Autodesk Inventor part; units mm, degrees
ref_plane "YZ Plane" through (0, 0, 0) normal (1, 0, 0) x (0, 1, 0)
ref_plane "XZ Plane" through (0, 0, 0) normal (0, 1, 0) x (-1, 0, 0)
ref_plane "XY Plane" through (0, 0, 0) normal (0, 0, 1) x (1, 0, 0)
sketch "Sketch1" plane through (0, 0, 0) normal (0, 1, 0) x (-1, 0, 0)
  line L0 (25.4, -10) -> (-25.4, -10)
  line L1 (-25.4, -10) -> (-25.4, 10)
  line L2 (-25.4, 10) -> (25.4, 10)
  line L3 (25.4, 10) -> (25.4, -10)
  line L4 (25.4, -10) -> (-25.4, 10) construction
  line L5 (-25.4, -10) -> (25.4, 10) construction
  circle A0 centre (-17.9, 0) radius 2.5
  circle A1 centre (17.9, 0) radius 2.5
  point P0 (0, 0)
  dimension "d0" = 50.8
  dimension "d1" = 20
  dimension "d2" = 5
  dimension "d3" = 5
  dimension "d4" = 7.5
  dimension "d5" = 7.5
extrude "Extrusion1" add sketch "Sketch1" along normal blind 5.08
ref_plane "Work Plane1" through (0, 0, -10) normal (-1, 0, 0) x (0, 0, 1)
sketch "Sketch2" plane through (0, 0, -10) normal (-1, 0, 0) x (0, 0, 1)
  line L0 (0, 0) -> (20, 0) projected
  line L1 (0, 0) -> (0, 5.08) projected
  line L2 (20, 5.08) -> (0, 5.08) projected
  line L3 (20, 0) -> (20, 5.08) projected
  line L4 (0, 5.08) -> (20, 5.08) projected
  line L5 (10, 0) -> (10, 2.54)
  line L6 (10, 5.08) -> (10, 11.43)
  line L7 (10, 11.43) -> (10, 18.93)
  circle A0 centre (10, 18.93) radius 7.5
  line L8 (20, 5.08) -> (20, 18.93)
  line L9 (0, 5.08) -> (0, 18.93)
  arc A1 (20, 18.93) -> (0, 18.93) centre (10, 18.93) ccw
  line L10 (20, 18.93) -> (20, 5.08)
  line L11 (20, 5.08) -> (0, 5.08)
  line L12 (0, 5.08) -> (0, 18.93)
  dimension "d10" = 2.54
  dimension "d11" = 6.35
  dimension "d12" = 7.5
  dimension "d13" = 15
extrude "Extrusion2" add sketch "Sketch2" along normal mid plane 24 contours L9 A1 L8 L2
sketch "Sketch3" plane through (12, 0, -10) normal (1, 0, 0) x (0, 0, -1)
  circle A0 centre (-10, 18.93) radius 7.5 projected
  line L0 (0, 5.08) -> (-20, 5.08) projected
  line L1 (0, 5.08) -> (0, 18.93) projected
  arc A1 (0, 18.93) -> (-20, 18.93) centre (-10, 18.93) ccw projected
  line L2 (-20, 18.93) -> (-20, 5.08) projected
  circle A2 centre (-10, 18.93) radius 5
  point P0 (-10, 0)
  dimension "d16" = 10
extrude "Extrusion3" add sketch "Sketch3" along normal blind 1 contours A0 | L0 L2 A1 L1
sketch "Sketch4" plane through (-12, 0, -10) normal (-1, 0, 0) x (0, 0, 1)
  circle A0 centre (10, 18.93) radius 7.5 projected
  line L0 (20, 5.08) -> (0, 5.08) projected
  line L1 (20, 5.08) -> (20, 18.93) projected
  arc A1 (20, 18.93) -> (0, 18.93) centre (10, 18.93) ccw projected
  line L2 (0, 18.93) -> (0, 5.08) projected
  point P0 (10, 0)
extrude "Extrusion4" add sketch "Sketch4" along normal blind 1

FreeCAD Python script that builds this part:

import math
import FreeCAD as App
import Part
import Sketcher


def add_polygon(sketch, points):
    """Adds a closed chain of lines whose ends are joined by coincident constraints."""
    first, n = sketch.GeometryCount, len(points)
    for a, b in zip(points, points[1:] + points[:1]):
        sketch.addGeometry(Part.LineSegment(App.Vector(*a, 0), App.Vector(*b, 0)), False)
    for i in range(n):
        sketch.addConstraint(Sketcher.Constraint("Coincident", first + i, 2, first + (i + 1) % n, 1))

doc = App.newDocument("Part")
body = doc.addObject("PartDesign::Body", "Body")

sketch1 = body.newObject("Sketcher::SketchObject", "Sketch")
sketch1.AttachmentSupport = (doc.getObject("XZ_Plane"), [""])
sketch1.MapMode = "FlatFace"
add_polygon(sketch1, [(25.4, -10), (-25.4, -10), (-25.4, 10), (25.4, 10)])
sketch1.addGeometry(Part.Circle(App.Vector(17.9, 0, 0), App.Vector(0, 0, 1), 2.5), False)
sketch1.addGeometry(Part.Circle(App.Vector(-17.9, 0, 0), App.Vector(0, 0, 1), 2.5), False)
sketch1.addConstraint([
    Sketcher.Constraint("Horizontal", 0),
    Sketcher.Constraint("Vertical", 1),
    Sketcher.Constraint("Horizontal", 2),
    Sketcher.Constraint("Vertical", 3),
    Sketcher.Constraint("Equal", 4, 5),
    Sketcher.Constraint("Symmetric", 4, 3, 5, 3, -1, 1),
    Sketcher.Constraint("Symmetric", 0, 2, 2, 2, -1, 1),
    Sketcher.Constraint("PointOnObject", 4, 3, -1),
    Sketcher.Constraint("Diameter", 4, 5.0),
    Sketcher.Constraint("DistanceY", 1, 1, 1, 2, 20.0),
    Sketcher.Constraint("DistanceX", 0, 2, 0, 1, 50.8),
    Sketcher.Constraint("DistanceX", 0, 2, 5, 3, 7.5),
])
pad1 = body.newObject("PartDesign::Pad", "Pad")
pad1.Profile = sketch1
pad1.Length = 5.08
pad1.Reversed = True

sketch2 = body.newObject("Sketcher::SketchObject", "Sketch001")
sketch2.AttachmentSupport = (doc.getObject("YZ_Plane"), [""])
sketch2.MapMode = "FlatFace"
sketch2.addGeometry([
    Part.LineSegment(App.Vector(19, -10, 0), App.Vector(5, -10, 0)),
    Part.LineSegment(App.Vector(5, -10, 0), App.Vector(5, 0, 0)),
    Part.LineSegment(App.Vector(5, 0, 0), App.Vector(5, 10, 0)),
    Part.LineSegment(App.Vector(5, 10, 0), App.Vector(19, 10, 0)),
    Part.ArcOfCircle(Part.Circle(App.Vector(19, 0, 0), App.Vector(0, 0, 1), 10), math.radians(-90), math.radians(90)),
    Part.Circle(App.Vector(19, 0, 0), App.Vector(0, 0, 1), 8),
], False)
sketch2.addConstraint([
    Sketcher.Constraint("Coincident", 0, 2, 1, 1),
    Sketcher.Constraint("Coincident", 1, 2, 2, 1),
    Sketcher.Constraint("Coincident", 2, 2, 3, 1),
    Sketcher.Constraint("Tangent", 3, 2, 4, 2),
    Sketcher.Constraint("Tangent", 4, 1, 0, 1),
    Sketcher.Constraint("Horizontal", 0),
    Sketcher.Constraint("Vertical", 1),
    Sketcher.Constraint("Vertical", 2),
    Sketcher.Constraint("Horizontal", 3),
    Sketcher.Constraint("Coincident", 5, 3, 4, 3),
    Sketcher.Constraint("PointOnObject", 4, 3, -1),
    Sketcher.Constraint("PointOnObject", 1, 2, -1),
    Sketcher.Constraint("Diameter", 5, 15.0),
    Sketcher.Constraint("Radius", 4, 10.0),
    Sketcher.Constraint("DistanceX", 0, 2, 0, 1, 13.85),
    Sketcher.Constraint("DistanceX", -1, 1, 4, 3, 18.93),
])
pad2 = body.newObject("PartDesign::Pad", "Pad001")
pad2.Profile = sketch2
pad2.Length = 24
pad2.Midplane = True

sketch3 = body.newObject("Sketcher::SketchObject", "Sketch002")
sketch3.AttachmentSupport = (doc.getObject("YZ_Plane"), [""])
sketch3.MapMode = "FlatFace"
sketch3.AttachmentOffset = App.Placement(App.Vector(0, 0, 12), App.Rotation())
sketch3.addGeometry([
    Part.LineSegment(App.Vector(5, 10, 0), App.Vector(5, -10, 0)),
    Part.LineSegment(App.Vector(5, -10, 0), App.Vector(19, -10, 0)),
    Part.ArcOfCircle(Part.Circle(App.Vector(19, 0, 0), App.Vector(0, 0, 1), 10), math.radians(-90), math.radians(90)),
    Part.LineSegment(App.Vector(19, 10, 0), App.Vector(5, 10, 0)),
    Part.Circle(App.Vector(19, 0, 0), App.Vector(0, 0, 1), 5),
], False)
sketch3.addConstraint([
    Sketcher.Constraint("Coincident", 0, 2, 1, 1),
    Sketcher.Constraint("Tangent", 1, 2, 2, 1),
    Sketcher.Constraint("Tangent", 2, 2, 3, 1),
    Sketcher.Constraint("Coincident", 3, 2, 0, 1),
    Sketcher.Constraint("Vertical", 0),
    Sketcher.Constraint("Horizontal", 1),
    Sketcher.Constraint("Horizontal", 3),
    Sketcher.Constraint("Coincident", 4, 3, 2, 3),
    Sketcher.Constraint("PointOnObject", 2, 3, -1),
    Sketcher.Constraint("Diameter", 4, 10.0),
    Sketcher.Constraint("Radius", 2, 10.0),
    Sketcher.Constraint("DistanceX", 1, 1, 1, 2, 13.85),
    Sketcher.Constraint("DistanceX", -1, 1, 2, 3, 18.93),
])
pad3 = body.newObject("PartDesign::Pad", "Pad002")
pad3.Profile = sketch3
pad3.Length = 1

sketch4 = body.newObject("Sketcher::SketchObject", "Sketch003")
sketch4.AttachmentSupport = (doc.getObject("YZ_Plane"), [""])
sketch4.MapMode = "FlatFace"
sketch4.AttachmentOffset = App.Placement(App.Vector(0, 0, -12), App.Rotation())
sketch4.addGeometry([
    Part.LineSegment(App.Vector(5, -10, 0), App.Vector(5, 10, 0)),
    Part.LineSegment(App.Vector(5, 10, 0), App.Vector(19, 10, 0)),
    Part.ArcOfCircle(Part.Circle(App.Vector(19, 0, 0), App.Vector(0, 0, 1), 10), math.radians(-90), math.radians(90)),
    Part.LineSegment(App.Vector(19, -10, 0), App.Vector(5, -10, 0)),
    Part.Circle(App.Vector(19, 0, 0), App.Vector(0, 0, 1), 8),
], False)
sketch4.addConstraint([
    Sketcher.Constraint("Coincident", 0, 2, 1, 1),
    Sketcher.Constraint("Tangent", 1, 2, 2, 2),
    Sketcher.Constraint("Tangent", 2, 1, 3, 1),
    Sketcher.Constraint("Coincident", 3, 2, 0, 1),
    Sketcher.Constraint("Vertical", 0),
    Sketcher.Constraint("Horizontal", 1),
    Sketcher.Constraint("Horizontal", 3),
    Sketcher.Constraint("Coincident", 4, 3, 2, 3),
    Sketcher.Constraint("PointOnObject", 2, 3, -1),
    Sketcher.Constraint("Diameter", 4, 15.0),
    Sketcher.Constraint("Radius", 2, 10.0),
    Sketcher.Constraint("DistanceX", 1, 1, 1, 2, 13.85),
    Sketcher.Constraint("DistanceX", -1, 1, 2, 3, 18.93),
])
pad4 = body.newObject("PartDesign::Pad", "Pad003")
pad4.Profile = sketch4
pad4.Length = 1
pad4.Reversed = True

doc.recompute()
